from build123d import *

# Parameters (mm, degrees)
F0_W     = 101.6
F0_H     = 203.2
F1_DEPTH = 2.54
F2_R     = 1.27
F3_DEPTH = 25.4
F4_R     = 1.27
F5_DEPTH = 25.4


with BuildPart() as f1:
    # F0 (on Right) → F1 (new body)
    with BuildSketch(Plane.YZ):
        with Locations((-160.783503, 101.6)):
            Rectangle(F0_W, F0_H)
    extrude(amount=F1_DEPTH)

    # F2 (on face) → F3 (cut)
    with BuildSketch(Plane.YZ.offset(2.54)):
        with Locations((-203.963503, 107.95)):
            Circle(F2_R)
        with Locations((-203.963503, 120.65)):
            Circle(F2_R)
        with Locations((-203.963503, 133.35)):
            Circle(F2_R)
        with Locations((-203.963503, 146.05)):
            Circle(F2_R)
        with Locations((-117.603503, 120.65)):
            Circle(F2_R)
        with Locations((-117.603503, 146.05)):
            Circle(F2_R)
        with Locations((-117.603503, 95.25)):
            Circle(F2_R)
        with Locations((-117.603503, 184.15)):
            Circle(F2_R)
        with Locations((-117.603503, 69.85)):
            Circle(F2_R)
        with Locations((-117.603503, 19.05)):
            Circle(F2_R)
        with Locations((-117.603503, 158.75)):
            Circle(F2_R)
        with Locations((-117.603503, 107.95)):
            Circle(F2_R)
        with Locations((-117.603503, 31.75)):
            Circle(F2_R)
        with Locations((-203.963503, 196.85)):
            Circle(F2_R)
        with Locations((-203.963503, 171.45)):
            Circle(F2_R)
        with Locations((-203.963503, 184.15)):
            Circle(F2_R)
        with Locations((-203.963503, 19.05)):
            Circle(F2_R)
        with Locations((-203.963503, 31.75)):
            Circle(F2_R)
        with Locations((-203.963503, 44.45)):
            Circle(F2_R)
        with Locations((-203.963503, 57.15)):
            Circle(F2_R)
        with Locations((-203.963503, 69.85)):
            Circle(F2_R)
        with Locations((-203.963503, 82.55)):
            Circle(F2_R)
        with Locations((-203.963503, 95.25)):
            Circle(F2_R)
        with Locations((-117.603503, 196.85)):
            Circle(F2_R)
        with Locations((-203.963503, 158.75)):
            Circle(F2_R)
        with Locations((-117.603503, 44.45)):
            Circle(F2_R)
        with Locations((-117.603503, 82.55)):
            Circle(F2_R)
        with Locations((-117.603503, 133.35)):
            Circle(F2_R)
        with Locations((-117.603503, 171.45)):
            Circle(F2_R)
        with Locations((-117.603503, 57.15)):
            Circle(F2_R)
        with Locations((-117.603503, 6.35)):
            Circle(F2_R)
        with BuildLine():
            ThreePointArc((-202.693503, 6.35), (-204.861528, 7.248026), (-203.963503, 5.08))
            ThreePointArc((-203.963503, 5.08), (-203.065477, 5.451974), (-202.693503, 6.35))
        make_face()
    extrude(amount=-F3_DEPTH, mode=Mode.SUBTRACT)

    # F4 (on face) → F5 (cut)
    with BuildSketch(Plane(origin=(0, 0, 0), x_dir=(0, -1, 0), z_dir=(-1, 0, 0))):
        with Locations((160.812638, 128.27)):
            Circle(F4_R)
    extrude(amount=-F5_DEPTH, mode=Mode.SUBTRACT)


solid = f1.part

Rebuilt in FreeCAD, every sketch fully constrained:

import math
import FreeCAD as App
import Part
import Sketcher
Q = App.Units.Quantity


def add_polygon(sketch, points):
    """Adds a closed chain of lines whose ends are joined by coincident constraints."""
    first, n = sketch.GeometryCount, len(points)
    for a, b in zip(points, points[1:] + points[:1]):
        sketch.addGeometry(Part.LineSegment(App.Vector(*a, 0), App.Vector(*b, 0)), False)
    for i in range(n):
        sketch.addConstraint(Sketcher.Constraint("Coincident", first + i, 2, first + (i + 1) % n, 1))

doc = App.newDocument("Part")
body = doc.addObject("PartDesign::Body", "Body")

# Sketch on YZ plane
sketch1 = doc.addObject("Sketcher::SketchObject", "Sketch")
body.addObject(sketch1)
sketch1.AttachmentSupport = (doc.YZ_Plane, [""])
sketch1.MapMode = "FlatFace"
add_polygon(sketch1, [(-212, 203), (-212, 0), (-110, 0), (-110, 203)])  # lines 0-3
sketch1.addConstraint(Sketcher.Constraint("Vertical", 0))
sketch1.addConstraint(Sketcher.Constraint("Horizontal", 1))
sketch1.addConstraint(Sketcher.Constraint("Vertical", 2))
sketch1.addConstraint(Sketcher.Constraint("Horizontal", 3))
sketch1.addConstraint(Sketcher.Constraint("PointOnObject", 0, 2, -1))
sketch1.addConstraint(Sketcher.Constraint("DistanceX", 1, 1, 1, 2, Q("4 in")))
sketch1.addConstraint(Sketcher.Constraint("DistanceY", 0, 2, 0, 1, Q("8 in")))
sketch1.addConstraint(Sketcher.Constraint("DistanceX", 0, 2, -1, 1, 211.583503))
pad1 = doc.addObject("PartDesign::Pad", "Pad")
body.addObject(pad1)
pad1.Profile = sketch1
pad1.Length = Q("0.1 in")

# Sketch on YZ plane
sketch2 = doc.addObject("Sketcher::SketchObject", "Sketch001")
body.addObject(sketch2)
sketch2.AttachmentSupport = (doc.YZ_Plane, [""])
sketch2.MapMode = "FlatFace"
sketch2.AttachmentOffset = App.Placement(App.Vector(0, 0, 0.1 * 25.4), App.Rotation())
sketch2.addGeometry(Part.Circle(App.Vector(-204, 108, 0), App.Vector(0, 0, 1), 1.3), False)
sketch2.addGeometry(Part.Circle(App.Vector(-204, 120.7, 0), App.Vector(0, 0, 1), 1.3), False)
sketch2.addGeometry(Part.Circle(App.Vector(-204, 133.3, 0), App.Vector(0, 0, 1), 1.3), False)
sketch2.addGeometry(Part.Circle(App.Vector(-204, 146.1, 0), App.Vector(0, 0, 1), 1.3), False)
sketch2.addGeometry(Part.Circle(App.Vector(-117.6, 120.7, 0), App.Vector(0, 0, 1), 1.3), False)
sketch2.addGeometry(Part.Circle(App.Vector(-117.6, 146.1, 0), App.Vector(0, 0, 1), 1.3), False)
sketch2.addGeometry(Part.Circle(App.Vector(-117.6, 95.2, 0), App.Vector(0, 0, 1), 1.3), False)
sketch2.addGeometry(Part.Circle(App.Vector(-117.6, 184.2, 0), App.Vector(0, 0, 1), 1.3), False)
sketch2.addGeometry(Part.Circle(App.Vector(-117.6, 69.8, 0), App.Vector(0, 0, 1), 1.3), False)
sketch2.addGeometry(Part.Circle(App.Vector(-117.6, 19.1, 0), App.Vector(0, 0, 1), 1.3), False)
sketch2.addGeometry(Part.Circle(App.Vector(-117.6, 158.8, 0), App.Vector(0, 0, 1), 1.3), False)
sketch2.addGeometry(Part.Circle(App.Vector(-117.6, 108, 0), App.Vector(0, 0, 1), 1.3), False)
sketch2.addGeometry(Part.Circle(App.Vector(-117.6, 31.8, 0), App.Vector(0, 0, 1), 1.3), False)
sketch2.addGeometry(Part.Circle(App.Vector(-204, 196.8, 0), App.Vector(0, 0, 1), 1.3), False)
sketch2.addGeometry(Part.Circle(App.Vector(-204, 171.4, 0), App.Vector(0, 0, 1), 1.3), False)
sketch2.addGeometry(Part.Circle(App.Vector(-204, 184.2, 0), App.Vector(0, 0, 1), 1.3), False)
sketch2.addGeometry(Part.Circle(App.Vector(-204, 19.1, 0), App.Vector(0, 0, 1), 1.3), False)
sketch2.addGeometry(Part.Circle(App.Vector(-204, 31.8, 0), App.Vector(0, 0, 1), 1.3), False)
sketch2.addGeometry(Part.Circle(App.Vector(-204, 44.5, 0), App.Vector(0, 0, 1), 1.3), False)
sketch2.addGeometry(Part.Circle(App.Vector(-204, 57.1, 0), App.Vector(0, 0, 1), 1.3), False)
sketch2.addGeometry(Part.Circle(App.Vector(-204, 69.8, 0), App.Vector(0, 0, 1), 1.3), False)
sketch2.addGeometry(Part.Circle(App.Vector(-204, 82.5, 0), App.Vector(0, 0, 1), 1.3), False)
sketch2.addGeometry(Part.Circle(App.Vector(-204, 95.2, 0), App.Vector(0, 0, 1), 1.3), False)
sketch2.addGeometry(Part.Circle(App.Vector(-117.6, 196.8, 0), App.Vector(0, 0, 1), 1.3), False)
sketch2.addGeometry(Part.Circle(App.Vector(-204, 158.8, 0), App.Vector(0, 0, 1), 1.3), False)
sketch2.addGeometry(Part.Circle(App.Vector(-117.6, 44.5, 0), App.Vector(0, 0, 1), 1.3), False)
sketch2.addGeometry(Part.Circle(App.Vector(-117.6, 82.5, 0), App.Vector(0, 0, 1), 1.3), False)
sketch2.addGeometry(Part.Circle(App.Vector(-117.6, 133.3, 0), App.Vector(0, 0, 1), 1.3), False)
sketch2.addGeometry(Part.Circle(App.Vector(-117.6, 171.4, 0), App.Vector(0, 0, 1), 1.3), False)
sketch2.addGeometry(Part.Circle(App.Vector(-117.6, 57.1, 0), App.Vector(0, 0, 1), 1.3), False)
sketch2.addGeometry(Part.Circle(App.Vector(-117.6, 6.3, 0), App.Vector(0, 0, 1), 1.3), False)
sketch2.addGeometry(Part.ArcOfCircle(Part.Circle(App.Vector(-204, 6.3, 0), App.Vector(0, 0, 1), 1.3), math.radians(0), math.radians(270)), False)
sketch2.addGeometry(Part.ArcOfCircle(Part.Circle(App.Vector(-204, 6.3, 0), App.Vector(0, 0, 1), 1.3), math.radians(-90), math.radians(0)), False)
sketch2.addConstraint(Sketcher.Constraint("Tangent", 31, 1, 32, 2))
sketch2.addConstraint(Sketcher.Constraint("Coincident", 32, 1, 31, 2))
sketch2.addConstraint(Sketcher.Constraint("Equal", 0, 1))
sketch2.addConstraint(Sketcher.Constraint("Equal", 1, 2))
sketch2.addConstraint(Sketcher.Constraint("Equal", 2, 3))
sketch2.addConstraint(Sketcher.Constraint("Equal", 3, 4))
sketch2.addConstraint(Sketcher.Constraint("Equal", 4, 5))
sketch2.addConstraint(Sketcher.Constraint("Equal", 5, 6))
sketch2.addConstraint(Sketcher.Constraint("Equal", 6, 7))
sketch2.addConstraint(Sketcher.Constraint("Equal", 7, 8))
sketch2.addConstraint(Sketcher.Constraint("Equal", 8, 9))
sketch2.addConstraint(Sketcher.Constraint("Equal", 9, 10))
sketch2.addConstraint(Sketcher.Constraint("Equal", 10, 11))
sketch2.addConstraint(Sketcher.Constraint("Equal", 11, 12))
sketch2.addConstraint(Sketcher.Constraint("Equal", 12, 13))
sketch2.addConstraint(Sketcher.Constraint("Equal", 13, 14))
sketch2.addConstraint(Sketcher.Constraint("Equal", 14, 15))
sketch2.addConstraint(Sketcher.Constraint("Equal", 15, 16))
sketch2.addConstraint(Sketcher.Constraint("Equal", 16, 17))
sketch2.addConstraint(Sketcher.Constraint("Equal", 17, 18))
sketch2.addConstraint(Sketcher.Constraint("Equal", 18, 19))
sketch2.addConstraint(Sketcher.Constraint("Equal", 19, 20))
sketch2.addConstraint(Sketcher.Constraint("Equal", 20, 21))
sketch2.addConstraint(Sketcher.Constraint("Equal", 21, 22))
sketch2.addConstraint(Sketcher.Constraint("Equal", 22, 23))
sketch2.addConstraint(Sketcher.Constraint("Equal", 23, 24))
sketch2.addConstraint(Sketcher.Constraint("Equal", 24, 25))
sketch2.addConstraint(Sketcher.Constraint("Equal", 25, 26))
sketch2.addConstraint(Sketcher.Constraint("Equal", 26, 27))
sketch2.addConstraint(Sketcher.Constraint("Equal", 27, 28))
sketch2.addConstraint(Sketcher.Constraint("Equal", 28, 29))
sketch2.addConstraint(Sketcher.Constraint("Equal", 29, 30))
sketch2.addConstraint(Sketcher.Constraint("Equal", 30, 31))
sketch2.addConstraint(Sketcher.Constraint("Horizontal", 1, 3, 4, 3))
sketch2.addConstraint(Sketcher.Constraint("Horizontal", 3, 3, 5, 3))
sketch2.addConstraint(Sketcher.Constraint("Horizontal", 0, 3, 11, 3))
sketch2.addConstraint(Sketcher.Constraint("Horizontal", 7, 3, 15, 3))
sketch2.addConstraint(Sketcher.Constraint("Horizontal", 9, 3, 16, 3))
sketch2.addConstraint(Sketcher.Constraint("Horizontal", 12, 3, 17, 3))
sketch2.addConstraint(Sketcher.Constraint("Horizontal", 8, 3, 20, 3))
sketch2.addConstraint(Sketcher.Constraint("Horizontal", 6, 3, 22, 3))
sketch2.addConstraint(Sketcher.Constraint("Horizontal", 13, 3, 23, 3))
sketch2.addConstraint(Sketcher.Constraint("Horizontal", 10, 3, 24, 3))
sketch2.addConstraint(Sketcher.Constraint("Horizontal", 18, 3, 25, 3))
sketch2.addConstraint(Sketcher.Constraint("Horizontal", 21, 3, 26, 3))
sketch2.addConstraint(Sketcher.Constraint("Horizontal", 2, 3, 27, 3))
sketch2.addConstraint(Sketcher.Constraint("Horizontal", 14, 3, 28, 3))
sketch2.addConstraint(Sketcher.Constraint("Horizontal", 19, 3, 29, 3))
sketch2.addConstraint(Sketcher.Constraint("Horizontal", 30, 3, 31, 3))
sketch2.addConstraint(Sketcher.Constraint("Horizontal", 32, 3, 31, 1))
sketch2.addConstraint(Sketcher.Constraint("Vertical", 0, 3, 1, 3))
sketch2.addConstraint(Sketcher.Constraint("Vertical", 1, 3, 2, 3))
sketch2.addConstraint(Sketcher.Constraint("Vertical", 2, 3, 3, 3))
sketch2.addConstraint(Sketcher.Constraint("Vertical", 4, 3, 5, 3))
sketch2.addConstraint(Sketcher.Constraint("Vertical", 5, 3, 6, 3))
sketch2.addConstraint(Sketcher.Constraint("Vertical", 6, 3, 7, 3))
sketch2.addConstraint(Sketcher.Constraint("Vertical", 7, 3, 8, 3))
sketch2.addConstraint(Sketcher.Constraint("Vertical", 8, 3, 9, 3))
sketch2.addConstraint(Sketcher.Constraint("Vertical", 9, 3, 10, 3))
sketch2.addConstraint(Sketcher.Constraint("Vertical", 10, 3, 11, 3))
sketch2.addConstraint(Sketcher.Constraint("Vertical", 11, 3, 12, 3))
sketch2.addConstraint(Sketcher.Constraint("Vertical", 3, 3, 13, 3))
sketch2.addConstraint(Sketcher.Constraint("Vertical", 13, 3, 14, 3))
sketch2.addConstraint(Sketcher.Constraint("Vertical", 14, 3, 15, 3))
sketch2.addConstraint(Sketcher.Constraint("Vertical", 15, 3, 16, 3))
sketch2.addConstraint(Sketcher.Constraint("Vertical", 16, 3, 17, 3))
sketch2.addConstraint(Sketcher.Constraint("Vertical", 17, 3, 18, 3))
sketch2.addConstraint(Sketcher.Constraint("Vertical", 18, 3, 19, 3))
sketch2.addConstraint(Sketcher.Constraint("Vertical", 19, 3, 20, 3))
sketch2.addConstraint(Sketcher.Constraint("Vertical", 20, 3, 21, 3))
sketch2.addConstraint(Sketcher.Constraint("Vertical", 21, 3, 22, 3))
sketch2.addConstraint(Sketcher.Constraint("Vertical", 12, 3, 23, 3))
sketch2.addConstraint(Sketcher.Constraint("Vertical", 22, 3, 24, 3))
sketch2.addConstraint(Sketcher.Constraint("Vertical", 23, 3, 25, 3))
sketch2.addConstraint(Sketcher.Constraint("Vertical", 25, 3, 26, 3))
sketch2.addConstraint(Sketcher.Constraint("Vertical", 26, 3, 27, 3))
sketch2.addConstraint(Sketcher.Constraint("Vertical", 27, 3, 28, 3))
sketch2.addConstraint(Sketcher.Constraint("Vertical", 28, 3, 29, 3))
sketch2.addConstraint(Sketcher.Constraint("Vertical", 29, 3, 30, 3))
sketch2.addConstraint(Sketcher.Constraint("Vertical", 24, 3, 31, 3))
sketch2.addConstraint(Sketcher.Constraint("Vertical", 31, 3, 32, 1))
sketch2.addConstraint(Sketcher.Constraint("Diameter", 0, Q("0.1 in")))
sketch2.addConstraint(Sketcher.Constraint("DistanceY", 0, 3, 2, 3, Q("1 in")))
sketch2.addConstraint(Sketcher.Constraint("DistanceY", 1, 3, 3, 3, Q("1 in")))
sketch2.addConstraint(Sketcher.Constraint("DistanceY", 6, 3, 4, 3, Q("1 in")))
sketch2.addConstraint(Sketcher.Constraint("DistanceY", 2, 3, 7, 3, Q("2 in")))
sketch2.addConstraint(Sketcher.Constraint("DistanceY", 8, 3, 6, 3, Q("1 in")))
sketch2.addConstraint(Sketcher.Constraint("DistanceY", 9, 3, 8, 3, Q("2 in")))
sketch2.addConstraint(Sketcher.Constraint("DistanceY", 10, 3, 7, 3, Q("1 in")))
sketch2.addConstraint(Sketcher.Constraint("DistanceY", 12, 3, 11, 3, Q("3 in")))
sketch2.addConstraint(Sketcher.Constraint("DistanceY", 3, 3, 13, 3, Q("2 in")))
sketch2.addConstraint(Sketcher.Constraint("DistanceY", 3, 3, 14, 3, Q("1 in")))
sketch2.addConstraint(Sketcher.Constraint("DistanceY", 16, 3, 18, 3, Q("1 in")))
sketch2.addConstraint(Sketcher.Constraint("DistanceY", 17, 3, 19, 3, Q("1 in")))
sketch2.addConstraint(Sketcher.Constraint("DistanceY", 19, 3, 21, 3, Q("1 in")))
sketch2.addConstraint(Sketcher.Constraint("DistanceY", 30, 3, 12, 3, Q("1 in")))
sketch2.addConstraint(Sketcher.Constraint("DistanceY", -1, 1, 32, 1, Q("0.2 in")))
sketch2.addConstraint(Sketcher.Constraint("DistanceY", 0, 3, 1, 3, Q("0.5 in")))
sketch2.addConstraint(Sketcher.Constraint("DistanceX", 1, 3, 4, 3, Q("3.4 in")))
sketch2.addConstraint(Sketcher.Constraint("DistanceX", 32, 3, -1, 1, 203.963502))
pocket1 = doc.addObject("PartDesign::Pocket", "Pocket")
body.addObject(pocket1)
pocket1.Profile = sketch2
pocket1.Length = Q("1 in")

# Sketch on YZ plane
sketch3 = doc.addObject("Sketcher::SketchObject", "Sketch002")
body.addObject(sketch3)
sketch3.AttachmentSupport = (doc.YZ_Plane, [""])
sketch3.MapMode = "FlatFace"
sketch3.addGeometry(Part.Circle(App.Vector(-160.8, 128.3, 0), App.Vector(0, 0, 1), 1.3), False)
sketch3.addConstraint(Sketcher.Constraint("Diameter", 0, Q("0.1 in")))
sketch3.addConstraint(Sketcher.Constraint("DistanceY", -1, 1, 0, 3, Q("5.05 in")))
sketch3.addConstraint(Sketcher.Constraint("DistanceX", 0, 3, -1, 1, 160.812638))
pocket2 = doc.addObject("PartDesign::Pocket", "Pocket001")
body.addObject(pocket2)
pocket2.Profile = sketch3
pocket2.Length = Q("1 in")
pocket2.Reversed = True

doc.recompute()
